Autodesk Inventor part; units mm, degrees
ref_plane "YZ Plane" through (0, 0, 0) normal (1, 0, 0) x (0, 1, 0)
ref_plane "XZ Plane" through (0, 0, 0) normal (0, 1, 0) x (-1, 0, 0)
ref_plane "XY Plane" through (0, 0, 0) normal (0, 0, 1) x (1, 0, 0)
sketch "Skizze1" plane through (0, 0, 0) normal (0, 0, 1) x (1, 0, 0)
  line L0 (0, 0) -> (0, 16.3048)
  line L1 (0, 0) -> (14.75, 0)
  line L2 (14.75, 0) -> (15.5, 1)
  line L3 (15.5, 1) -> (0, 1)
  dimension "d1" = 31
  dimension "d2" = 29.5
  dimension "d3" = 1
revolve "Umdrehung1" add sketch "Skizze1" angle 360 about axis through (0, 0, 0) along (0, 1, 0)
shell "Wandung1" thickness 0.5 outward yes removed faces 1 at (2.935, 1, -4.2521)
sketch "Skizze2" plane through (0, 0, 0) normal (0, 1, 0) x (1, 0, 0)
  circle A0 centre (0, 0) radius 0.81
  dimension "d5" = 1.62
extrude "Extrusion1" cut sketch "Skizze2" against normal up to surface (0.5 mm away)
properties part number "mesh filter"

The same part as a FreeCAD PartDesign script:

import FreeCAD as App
import Part
import Sketcher
Q = App.Units.Quantity


def faces_at(feature, points):
    """Names of the faces that lie closest to the given points."""
    faces = feature.Shape.Faces
    near = lambda p: min(range(len(faces)), key=lambda i: faces[i].distToShape(Part.Vertex(*p))[0])
    return sorted({f"Face{near(p) + 1}" for p in points})


def add_polygon(sketch, points):
    """Adds a closed chain of lines whose ends are joined by coincident constraints."""
    first, n = sketch.GeometryCount, len(points)
    for a, b in zip(points, points[1:] + points[:1]):
        sketch.addGeometry(Part.LineSegment(App.Vector(*a, 0), App.Vector(*b, 0)), False)
    for i in range(n):
        sketch.addConstraint(Sketcher.Constraint("Coincident", first + i, 2, first + (i + 1) % n, 1))

doc = App.newDocument("Part")
params = doc.addObject("Spreadsheet::Sheet", "Params")
for row, (alias, value) in enumerate([
    ("sketch1_height", "1 mm"),
    ("sketch1_width", "15.5 mm"),
    ("sketch1_width2", "14.75 mm"),
    ("revolution_angle", "360 deg"),
    ("thickness_wall", "0.5 mm"),
    ("sketch2_diameter", "1.62 mm"),
    ("pocket1_length", "0.5 mm"),
], start=1):
    params.set(f"A{row}", alias)
    params.set(f"B{row}", "=" + value)
    params.setAlias(f"B{row}", alias)

body = doc.addObject("PartDesign::Body", "Body")

# Sketch on XY plane
sketch1 = doc.addObject("Sketcher::SketchObject", "Sketch")
body.addObject(sketch1)
sketch1.AttachmentSupport = (doc.XY_Plane, [""])
sketch1.MapMode = "FlatFace"
add_polygon(sketch1, [(0, 1), (0, 0), (14.8, 0), (15.5, 1)])  # lines 0-3
sketch1.addConstraint([
    Sketcher.Constraint("Vertical", 0),
    Sketcher.Constraint("Horizontal", 1),
    Sketcher.Constraint("Horizontal", 3),
    Sketcher.Constraint("Coincident", 0, 2, -1, 1),
    Sketcher.Constraint("DistanceY", 0, 2, 0, 1, Q("1 mm")),
    Sketcher.Constraint("DistanceX", 3, 2, 3, 1, Q("15.5 mm")),
    Sketcher.Constraint("DistanceX", 1, 1, 1, 2, Q("14.75 mm")),
])
sketch1.setExpression("Constraints[8]", "Params.sketch1_height")
sketch1.setExpression("Constraints[9]", "Params.sketch1_width")
sketch1.setExpression("Constraints[10]", "Params.sketch1_width2")
revolution = doc.addObject("PartDesign::Revolution", "Revolution")
body.addObject(revolution)
revolution.Profile = sketch1
revolution.ReferenceAxis = (sketch1, ["V_Axis"])
revolution.setExpression("Angle", "Params.revolution_angle")
doc.recompute()

thickness = doc.addObject("PartDesign::Thickness", "Thickness")
body.addObject(thickness)
thickness.Base = (revolution, faces_at(revolution, [(2.935, 1, -4.252)]))
thickness.setExpression("Value", "Params.thickness_wall")
thickness.Reversed = False
thickness.Join = "Intersection"

# Sketch on XZ plane
sketch2 = doc.addObject("Sketcher::SketchObject", "Sketch001")
body.addObject(sketch2)
sketch2.AttachmentSupport = (doc.XZ_Plane, [""])
sketch2.MapMode = "FlatFace"
sketch2.addGeometry(Part.Circle(App.Vector(0, 0, 0), App.Vector(0, 0, 1), 0.8), False)
sketch2.addConstraint([
    Sketcher.Constraint("Coincident", 0, 3, -1, 1),
    Sketcher.Constraint("Diameter", 0, Q("1.62 mm")),
])
sketch2.setExpression("Constraints[1]", "Params.sketch2_diameter")
pocket1 = doc.addObject("PartDesign::Pocket", "Pocket")
body.addObject(pocket1)
pocket1.Profile = sketch2
pocket1.setExpression("Length", "Params.pocket1_length")
pocket1.Reversed = True

doc.recompute()
